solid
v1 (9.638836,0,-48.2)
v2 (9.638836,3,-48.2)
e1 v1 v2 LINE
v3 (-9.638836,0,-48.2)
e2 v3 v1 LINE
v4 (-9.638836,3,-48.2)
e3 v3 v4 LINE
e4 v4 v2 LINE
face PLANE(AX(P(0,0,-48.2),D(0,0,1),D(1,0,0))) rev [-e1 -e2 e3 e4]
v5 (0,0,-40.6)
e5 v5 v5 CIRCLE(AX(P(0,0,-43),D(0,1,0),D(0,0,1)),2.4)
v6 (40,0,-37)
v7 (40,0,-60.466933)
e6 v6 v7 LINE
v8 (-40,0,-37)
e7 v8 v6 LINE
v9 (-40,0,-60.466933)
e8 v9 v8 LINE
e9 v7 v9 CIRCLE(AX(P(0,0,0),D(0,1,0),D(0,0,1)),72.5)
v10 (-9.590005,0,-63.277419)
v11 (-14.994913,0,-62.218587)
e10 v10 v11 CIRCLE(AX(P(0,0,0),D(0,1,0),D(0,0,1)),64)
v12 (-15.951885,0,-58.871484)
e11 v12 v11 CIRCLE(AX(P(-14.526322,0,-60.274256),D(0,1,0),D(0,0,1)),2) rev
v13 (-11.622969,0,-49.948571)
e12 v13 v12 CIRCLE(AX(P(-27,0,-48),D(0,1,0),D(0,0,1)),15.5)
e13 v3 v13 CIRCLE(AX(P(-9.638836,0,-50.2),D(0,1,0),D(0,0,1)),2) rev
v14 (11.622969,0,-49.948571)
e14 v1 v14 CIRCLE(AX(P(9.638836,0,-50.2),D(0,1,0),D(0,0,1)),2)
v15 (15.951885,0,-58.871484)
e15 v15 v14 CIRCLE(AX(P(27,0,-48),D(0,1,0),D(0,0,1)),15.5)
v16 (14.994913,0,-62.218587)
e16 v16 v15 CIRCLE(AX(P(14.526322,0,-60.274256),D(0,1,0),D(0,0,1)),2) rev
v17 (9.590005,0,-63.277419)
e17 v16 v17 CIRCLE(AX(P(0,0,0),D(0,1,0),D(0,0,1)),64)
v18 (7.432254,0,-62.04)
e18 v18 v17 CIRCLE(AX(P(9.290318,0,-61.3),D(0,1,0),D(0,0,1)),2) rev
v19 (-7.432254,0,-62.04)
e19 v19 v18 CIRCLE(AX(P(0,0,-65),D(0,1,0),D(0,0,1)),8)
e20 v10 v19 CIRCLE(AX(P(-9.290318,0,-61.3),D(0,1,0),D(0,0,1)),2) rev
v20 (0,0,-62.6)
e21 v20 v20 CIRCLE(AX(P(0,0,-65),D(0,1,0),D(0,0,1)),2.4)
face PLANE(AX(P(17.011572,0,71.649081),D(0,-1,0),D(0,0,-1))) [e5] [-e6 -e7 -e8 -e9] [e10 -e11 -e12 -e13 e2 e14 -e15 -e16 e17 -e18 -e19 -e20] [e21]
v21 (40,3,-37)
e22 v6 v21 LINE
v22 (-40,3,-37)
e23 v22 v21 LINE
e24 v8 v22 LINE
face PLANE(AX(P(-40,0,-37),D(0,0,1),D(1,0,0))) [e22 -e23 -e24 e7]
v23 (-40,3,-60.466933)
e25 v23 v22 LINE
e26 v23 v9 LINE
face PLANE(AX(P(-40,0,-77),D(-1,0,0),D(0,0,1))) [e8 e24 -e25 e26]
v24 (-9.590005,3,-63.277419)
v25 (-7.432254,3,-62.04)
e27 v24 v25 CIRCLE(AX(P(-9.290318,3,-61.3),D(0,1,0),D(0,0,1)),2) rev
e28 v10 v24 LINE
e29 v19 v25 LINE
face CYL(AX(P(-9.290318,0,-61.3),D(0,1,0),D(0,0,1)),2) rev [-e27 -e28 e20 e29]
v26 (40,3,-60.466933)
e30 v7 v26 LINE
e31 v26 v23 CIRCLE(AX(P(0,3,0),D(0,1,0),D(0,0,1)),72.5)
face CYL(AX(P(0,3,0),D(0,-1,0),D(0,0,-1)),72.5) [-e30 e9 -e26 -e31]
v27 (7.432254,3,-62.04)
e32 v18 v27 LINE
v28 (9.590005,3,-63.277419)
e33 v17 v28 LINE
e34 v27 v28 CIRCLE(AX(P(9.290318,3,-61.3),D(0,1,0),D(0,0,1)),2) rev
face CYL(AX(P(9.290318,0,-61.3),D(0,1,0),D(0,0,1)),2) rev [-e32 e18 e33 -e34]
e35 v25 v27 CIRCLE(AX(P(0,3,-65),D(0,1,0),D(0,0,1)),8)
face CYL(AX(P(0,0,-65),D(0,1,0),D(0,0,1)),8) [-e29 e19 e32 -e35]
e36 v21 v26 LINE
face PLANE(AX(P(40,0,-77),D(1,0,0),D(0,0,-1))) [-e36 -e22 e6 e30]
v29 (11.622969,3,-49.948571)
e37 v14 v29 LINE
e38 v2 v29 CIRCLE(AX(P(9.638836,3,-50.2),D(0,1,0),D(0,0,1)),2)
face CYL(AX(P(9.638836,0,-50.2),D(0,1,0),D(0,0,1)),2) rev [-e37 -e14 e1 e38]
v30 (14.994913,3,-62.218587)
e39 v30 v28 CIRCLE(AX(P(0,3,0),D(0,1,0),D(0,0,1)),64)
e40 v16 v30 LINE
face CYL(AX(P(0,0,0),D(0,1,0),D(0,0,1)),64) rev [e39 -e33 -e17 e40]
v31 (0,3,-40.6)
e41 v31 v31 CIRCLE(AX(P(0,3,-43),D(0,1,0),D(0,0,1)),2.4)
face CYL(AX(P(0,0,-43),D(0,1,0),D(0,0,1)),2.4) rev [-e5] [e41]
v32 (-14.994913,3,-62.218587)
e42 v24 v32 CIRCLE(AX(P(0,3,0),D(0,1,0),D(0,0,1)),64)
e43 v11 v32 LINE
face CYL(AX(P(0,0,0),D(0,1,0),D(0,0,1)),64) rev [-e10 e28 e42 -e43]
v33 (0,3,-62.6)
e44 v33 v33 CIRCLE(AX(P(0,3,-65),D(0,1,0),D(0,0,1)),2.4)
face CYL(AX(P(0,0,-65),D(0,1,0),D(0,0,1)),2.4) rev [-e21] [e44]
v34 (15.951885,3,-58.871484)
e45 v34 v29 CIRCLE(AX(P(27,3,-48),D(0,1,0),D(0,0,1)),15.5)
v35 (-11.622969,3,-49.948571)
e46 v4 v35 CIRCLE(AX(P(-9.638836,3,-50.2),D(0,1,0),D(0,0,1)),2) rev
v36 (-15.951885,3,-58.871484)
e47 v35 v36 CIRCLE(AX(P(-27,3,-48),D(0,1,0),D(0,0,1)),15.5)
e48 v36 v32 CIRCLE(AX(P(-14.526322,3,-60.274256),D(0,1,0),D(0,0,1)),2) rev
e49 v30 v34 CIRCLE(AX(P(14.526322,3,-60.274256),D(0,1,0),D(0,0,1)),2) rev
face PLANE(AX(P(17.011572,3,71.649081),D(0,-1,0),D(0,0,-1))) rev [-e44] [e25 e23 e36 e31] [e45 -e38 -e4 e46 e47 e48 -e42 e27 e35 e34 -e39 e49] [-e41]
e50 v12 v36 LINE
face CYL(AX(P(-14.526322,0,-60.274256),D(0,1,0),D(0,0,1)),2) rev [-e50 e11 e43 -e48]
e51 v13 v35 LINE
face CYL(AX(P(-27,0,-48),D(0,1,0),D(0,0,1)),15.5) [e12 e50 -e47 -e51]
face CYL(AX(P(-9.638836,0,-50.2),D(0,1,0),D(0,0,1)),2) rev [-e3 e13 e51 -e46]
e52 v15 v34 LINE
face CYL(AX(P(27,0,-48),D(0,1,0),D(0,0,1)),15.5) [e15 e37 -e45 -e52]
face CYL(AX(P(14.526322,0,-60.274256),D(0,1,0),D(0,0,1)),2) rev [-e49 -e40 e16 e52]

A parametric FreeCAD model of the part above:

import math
import FreeCAD as App
import Part
import Sketcher
from FreeCAD import Vector
Q = App.Units.Quantity


def add_polygon(sketch, points):
    """Adds a closed chain of lines whose ends are joined by coincident constraints."""
    first, n = sketch.GeometryCount, len(points)
    for a, b in zip(points, points[1:] + points[:1]):
        sketch.addGeometry(Part.LineSegment(App.Vector(*a, 0), App.Vector(*b, 0)), False)
    for i in range(n):
        sketch.addConstraint(Sketcher.Constraint("Coincident", first + i, 2, first + (i + 1) % n, 1))

doc = App.newDocument("Part")
body = doc.addObject("PartDesign::Body", "Body")

# Sketch on XZ plane
sketch1 = doc.addObject("Sketcher::SketchObject", "Sketch")
body.addObject(sketch1)
sketch1.AttachmentSupport = (doc.XZ_Plane, [""])
sketch1.MapMode = "FlatFace"
sketch1.addGeometry([
    Part.ArcOfCircle(Part.Circle(Vector(0, 0, 0), Vector(0, 0, 1), 72.5), math.radians(120.268083), math.radians(419.731917)),
    Part.ArcOfCircle(Part.Circle(Vector(-34.023144, 58.298162, 0), Vector(0, 0, 1), 5), math.radians(38.125318), math.radians(120.268083)),
    Part.ArcOfCircle(Part.Circle(Vector(0, 85, 0), Vector(0, 0, 1), 38.25), math.radians(-141.874682), math.radians(-38.125318)),
    Part.ArcOfCircle(Part.Circle(Vector(34.023144, 58.298162, 0), Vector(0, 0, 1), 5), math.radians(59.731917), math.radians(141.874682)),
], False)
sketch1.addConstraint([
    Sketcher.Constraint("Tangent", 0, 1, 1, 2),
    Sketcher.Constraint("Tangent", 1, 1, 2, 1),
    Sketcher.Constraint("Tangent", 2, 2, 3, 2),
    Sketcher.Constraint("Tangent", 3, 1, 0, 2),
    Sketcher.Constraint("Coincident", 0, 3, -1, 1),
    Sketcher.Constraint("Equal", 1, 3),
    Sketcher.Constraint("PointOnObject", 2, 3, -2),
    Sketcher.Constraint("Radius", 1, Q("5 mm")),
    Sketcher.Constraint("Radius", 0, Q("72.5 mm")),
    Sketcher.Constraint("Radius", 2, Q("38.25 mm")),
    Sketcher.Constraint("DistanceY", -1, 1, 2, 3, Q("85 mm")),
])
pad1 = doc.addObject("PartDesign::Pad", "Pad")
body.addObject(pad1)
pad1.Profile = sketch1
pad1.Length = 3
pad1.Reversed = True

# Sketch on XZ plane
sketch2 = doc.addObject("Sketcher::SketchObject", "Sketch001")
body.addObject(sketch2)
sketch2.AttachmentSupport = (doc.XZ_Plane, [""])
sketch2.MapMode = "FlatFace"
sketch2.AttachmentOffset = App.Placement(Vector(0, 0, -3), App.Rotation())
sketch2.addGeometry([
    Part.LineSegment(Vector(-9.638836, -48.2, 0), Vector(9.638836, -48.2, 0)),  # 0
    Part.ArcOfCircle(Part.Circle(Vector(9.638836, -50.2, 0), Vector(0, 0, 1), 2), math.radians(7.222007), math.radians(90)),  # 1
    Part.ArcOfCircle(Part.Circle(Vector(27, -48, 0), Vector(0, 0, 1), 15.5), math.radians(-172.777993), math.radians(-135.461685)),  # 2
    Part.ArcOfCircle(Part.Circle(Vector(14.526322, -60.274256, 0), Vector(0, 0, 1), 2), math.radians(-76.4499), math.radians(44.538315)),  # 3
    Part.ArcOfCircle(Part.Circle(Vector(0, 0, 0), Vector(0, 0, 1), 64), math.radians(-81.382124), math.radians(-76.4499)),  # 4
    Part.ArcOfCircle(Part.Circle(Vector(9.290318, -61.3, 0), Vector(0, 0, 1), 2), math.radians(-158.284383), math.radians(-81.382124)),  # 5
    Part.ArcOfCircle(Part.Circle(Vector(0, -65, 0), Vector(0, 0, 1), 8), math.radians(21.715617), math.radians(158.284383)),  # 6
    Part.ArcOfCircle(Part.Circle(Vector(-9.290318, -61.3, 0), Vector(0, 0, 1), 2), math.radians(-98.617876), math.radians(-21.715617)),  # 7
    Part.ArcOfCircle(Part.Circle(Vector(0, 0, 0), Vector(0, 0, 1), 64), math.radians(-103.5501), math.radians(-98.617876)),  # 8
    Part.ArcOfCircle(Part.Circle(Vector(-14.526322, -60.274256, 0), Vector(0, 0, 1), 2), math.radians(135.461685), math.radians(256.4499)),  # 9
    Part.ArcOfCircle(Part.Circle(Vector(-27, -48, 0), Vector(0, 0, 1), 15.5), math.radians(-44.538315), math.radians(-7.222007)),  # 10
    Part.ArcOfCircle(Part.Circle(Vector(-9.638836, -50.2, 0), Vector(0, 0, 1), 2), math.radians(90), math.radians(172.777993)),  # 11
], False)
sketch2.addConstraint([
    Sketcher.Constraint("Tangent", 0, 2, 1, 2),
    Sketcher.Constraint("Tangent", 1, 1, 2, 1),
    Sketcher.Constraint("Tangent", 2, 2, 3, 2),
    Sketcher.Constraint("Tangent", 3, 1, 4, 2),
    Sketcher.Constraint("Tangent", 4, 1, 5, 2),
    Sketcher.Constraint("Tangent", 5, 1, 6, 1),
    Sketcher.Constraint("Tangent", 6, 2, 7, 2),
    Sketcher.Constraint("Tangent", 7, 1, 8, 2),
    Sketcher.Constraint("Tangent", 8, 1, 9, 2),
    Sketcher.Constraint("Tangent", 9, 1, 10, 1),
    Sketcher.Constraint("Tangent", 10, 2, 11, 2),
    Sketcher.Constraint("Tangent", 11, 1, 0, 1),
    Sketcher.Constraint("Horizontal", 0),
    Sketcher.Constraint("Coincident", 4, 3, -1, 1),
    Sketcher.Constraint("Coincident", 8, 3, -1, 1),
    Sketcher.Constraint("Equal", 1, 3),
    Sketcher.Constraint("Equal", 3, 5),
    Sketcher.Constraint("Equal", 5, 7),
    Sketcher.Constraint("Equal", 4, 8),
    Sketcher.Constraint("Equal", 7, 9),
    Sketcher.Constraint("Equal", 2, 10),
    Sketcher.Constraint("Equal", 9, 11),
    Sketcher.Constraint("Symmetric", 2, 3, 10, 3, -2),
    Sketcher.Constraint("PointOnObject", 6, 3, -2),
    Sketcher.Constraint("Radius", 1, Q("2 mm")),
    Sketcher.Constraint("Radius", 4, Q("64 mm")),
    Sketcher.Constraint("Radius", 6, Q("8 mm")),
    Sketcher.Constraint("Radius", 2, Q("15.5 mm")),
    Sketcher.Constraint("DistanceX", -1, 1, 2, 3, Q("27 mm")),
    Sketcher.Constraint("DistanceY", 2, 3, -1, 1, Q("48 mm")),
    Sketcher.Constraint("DistanceY", 6, 3, -1, 1, Q("65 mm")),
    Sketcher.Constraint("DistanceY", 1, 3, -1, 1, Q("50.2 mm")),
])
pocket1 = doc.addObject("PartDesign::Pocket", "Pocket")
body.addObject(pocket1)
pocket1.Profile = sketch2
pocket1.Type = "ThroughAll"
pocket1.Reversed = True

# Sketch on XZ plane
sketch3 = doc.addObject("Sketcher::SketchObject", "Sketch002")
body.addObject(sketch3)
sketch3.AttachmentSupport = (doc.XZ_Plane, [""])
sketch3.MapMode = "FlatFace"
sketch3.AttachmentOffset = App.Placement(Vector(0, 0, -3), App.Rotation())
add_polygon(sketch3, [(-93.368, -93.368), (-93.368, 84.166), (93.368, 84.166), (93.368, -93.368)])  # lines 0-3
add_polygon(sketch3, [(40, -37), (-40, -37), (-40, -77), (40, -77)])  # lines 4-7
sketch3.addConstraint([
    Sketcher.Constraint("Vertical", 0),
    Sketcher.Constraint("Horizontal", 1),
    Sketcher.Constraint("Vertical", 2),
    Sketcher.Constraint("Horizontal", 3),
    Sketcher.Constraint("Horizontal", 4),
    Sketcher.Constraint("Vertical", 5),
    Sketcher.Constraint("Horizontal", 6),
    Sketcher.Constraint("Vertical", 7),
    Sketcher.Constraint("DistanceX", 4, 2, 4, 1, Q("80 mm")),
    Sketcher.Constraint("DistanceY", 5, 2, 5, 1, Q("40 mm")),
    Sketcher.Constraint("DistanceX", 4, 2, -1, 1, Q("40 mm")),
    Sketcher.Constraint("DistanceY", 4, 2, -1, 1, Q("37 mm")),
    Sketcher.Constraint("DistanceX", 1, 1, 1, 2, Q("186.736 mm")),
    Sketcher.Constraint("DistanceY", 0, 1, 0, 2, Q("177.534 mm")),
    Sketcher.Constraint("DistanceX", 0, 2, -1, 1, Q("93.368 mm")),
    Sketcher.Constraint("DistanceY", -1, 1, 0, 2, Q("84.166 mm")),
])
pocket2 = doc.addObject("PartDesign::Pocket", "Pocket001")
body.addObject(pocket2)
pocket2.Profile = sketch3
pocket2.Type = "ThroughAll"
pocket2.Reversed = True

# Sketch on XZ plane
sketch4 = doc.addObject("Sketcher::SketchObject", "Sketch003")
body.addObject(sketch4)
sketch4.AttachmentSupport = (doc.XZ_Plane, [""])
sketch4.MapMode = "FlatFace"
sketch4.AttachmentOffset = App.Placement(Vector(0, 0, -3), App.Rotation())
sketch4.addGeometry([
    Part.Circle(Vector(0, -65, 0), Vector(0, 0, 1), 2.4),
    Part.Circle(Vector(0, -43, 0), Vector(0, 0, 1), 2.4),
], False)
sketch4.addConstraint([
    Sketcher.Constraint("Equal", 0, 1),
    Sketcher.Constraint("PointOnObject", 0, 3, -2),
    Sketcher.Constraint("PointOnObject", 1, 3, -2),
    Sketcher.Constraint("Diameter", 0, Q("4.8 mm")),
    Sketcher.Constraint("DistanceY", 0, 3, -1, 1, Q("65 mm")),
    Sketcher.Constraint("DistanceY", 1, 3, -1, 1, Q("43 mm")),
])
pocket3 = doc.addObject("PartDesign::Pocket", "Pocket002")
body.addObject(pocket3)
pocket3.Profile = sketch4
pocket3.Type = "ThroughAll"
pocket3.Reversed = True

doc.recompute()
